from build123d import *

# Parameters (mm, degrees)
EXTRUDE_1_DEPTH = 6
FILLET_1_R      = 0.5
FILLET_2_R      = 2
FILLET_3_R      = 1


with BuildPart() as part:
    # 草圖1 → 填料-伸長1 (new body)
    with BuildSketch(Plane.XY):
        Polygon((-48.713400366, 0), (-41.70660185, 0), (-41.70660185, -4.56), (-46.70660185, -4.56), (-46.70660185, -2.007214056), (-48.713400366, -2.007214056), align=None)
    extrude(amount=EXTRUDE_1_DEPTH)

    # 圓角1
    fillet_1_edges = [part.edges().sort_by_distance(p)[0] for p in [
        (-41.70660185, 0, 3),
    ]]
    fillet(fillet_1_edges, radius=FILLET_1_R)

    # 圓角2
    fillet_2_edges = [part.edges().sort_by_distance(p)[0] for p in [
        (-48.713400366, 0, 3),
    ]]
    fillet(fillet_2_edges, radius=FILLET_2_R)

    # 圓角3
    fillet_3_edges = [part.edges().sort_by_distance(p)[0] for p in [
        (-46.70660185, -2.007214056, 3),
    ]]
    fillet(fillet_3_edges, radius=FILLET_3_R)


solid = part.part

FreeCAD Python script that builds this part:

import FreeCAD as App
import Part
import Sketcher
Q = App.Units.Quantity


def edges_at(feature, points):
    """Names of the edges that pass closest to the given points."""
    edges = feature.Shape.Edges
    near = lambda p: min(range(len(edges)), key=lambda i: edges[i].distToShape(Part.Vertex(*p))[0])
    return sorted({f"Edge{near(p) + 1}" for p in points})

doc = App.newDocument("Part")
body = doc.addObject("PartDesign::Body", "Body")

# Sketch on XY plane
sketch1 = body.newObject("Sketcher::SketchObject", "Sketch")
sketch1.AttachmentSupport = (doc.getObject("XY_Plane"), [""])
sketch1.MapMode = "FlatFace"
sketch1.addGeometry([
    Part.LineSegment(App.Vector(-41.706602, 0, 0), App.Vector(-48.7134, 0, 0)),  # 0
    Part.LineSegment(App.Vector(-48.7134, 0, 0), App.Vector(-48.7134, -2.007214, 0)),  # 1
    Part.LineSegment(App.Vector(-48.7134, -2.007214, 0), App.Vector(-46.706602, -2.007214, 0)),  # 2
    Part.LineSegment(App.Vector(-46.706602, -2.007214, 0), App.Vector(-46.706602, -4.56, 0)),  # 3
    Part.LineSegment(App.Vector(-46.706602, -4.56, 0), App.Vector(-41.706602, -4.56, 0)),  # 4
    Part.LineSegment(App.Vector(-41.706602, -4.56, 0), App.Vector(-41.706602, 0, 0)),  # 5
], False)
sketch1.addConstraint([
    Sketcher.Constraint("Coincident", 0, 2, 1, 1),
    Sketcher.Constraint("Coincident", 1, 2, 2, 1),
    Sketcher.Constraint("Coincident", 2, 2, 3, 1),
    Sketcher.Constraint("Coincident", 3, 2, 4, 1),
    Sketcher.Constraint("Coincident", 4, 2, 5, 1),
    Sketcher.Constraint("Coincident", 5, 2, 0, 1),
    Sketcher.Constraint("Horizontal", 0),
    Sketcher.Constraint("Vertical", 1),
    Sketcher.Constraint("Horizontal", 2),
    Sketcher.Constraint("Vertical", 3),
    Sketcher.Constraint("Horizontal", 4),
    Sketcher.Constraint("Vertical", 5),
    Sketcher.Constraint("PointOnObject", 0, 2, -1),
    Sketcher.Constraint("DistanceX", 4, 1, 4, 2, Q("5 mm")),
    Sketcher.Constraint("DistanceY", 5, 1, 5, 2, Q("4.56 mm")),
    Sketcher.Constraint("DistanceX", 0, 2, 0, 1, Q("7.006799 mm")),
    Sketcher.Constraint("DistanceX", 0, 2, -1, 1, Q("48.7134 mm")),
    Sketcher.Constraint("DistanceY", 1, 2, 1, 1, Q("2.007214 mm")),
])
pad1 = body.newObject("PartDesign::Pad", "Pad")
pad1.Profile = sketch1
pad1.Length = 6
doc.recompute()

fillet = body.newObject("PartDesign::Fillet", "Fillet")
fillet.Base = (pad1, edges_at(pad1, [(-41.707, 0, 3)]))
fillet.Radius = 0.5
doc.recompute()

fillet2 = body.newObject("PartDesign::Fillet", "Fillet001")
fillet2.Base = (fillet, edges_at(fillet, [(-48.713, 0, 3)]))
fillet2.Radius = 2
doc.recompute()

fillet3 = body.newObject("PartDesign::Fillet", "Fillet002")
fillet3.Base = (fillet2, edges_at(fillet2, [(-46.707, -2.007, 3)]))
fillet3.Radius = 1

doc.recompute()
